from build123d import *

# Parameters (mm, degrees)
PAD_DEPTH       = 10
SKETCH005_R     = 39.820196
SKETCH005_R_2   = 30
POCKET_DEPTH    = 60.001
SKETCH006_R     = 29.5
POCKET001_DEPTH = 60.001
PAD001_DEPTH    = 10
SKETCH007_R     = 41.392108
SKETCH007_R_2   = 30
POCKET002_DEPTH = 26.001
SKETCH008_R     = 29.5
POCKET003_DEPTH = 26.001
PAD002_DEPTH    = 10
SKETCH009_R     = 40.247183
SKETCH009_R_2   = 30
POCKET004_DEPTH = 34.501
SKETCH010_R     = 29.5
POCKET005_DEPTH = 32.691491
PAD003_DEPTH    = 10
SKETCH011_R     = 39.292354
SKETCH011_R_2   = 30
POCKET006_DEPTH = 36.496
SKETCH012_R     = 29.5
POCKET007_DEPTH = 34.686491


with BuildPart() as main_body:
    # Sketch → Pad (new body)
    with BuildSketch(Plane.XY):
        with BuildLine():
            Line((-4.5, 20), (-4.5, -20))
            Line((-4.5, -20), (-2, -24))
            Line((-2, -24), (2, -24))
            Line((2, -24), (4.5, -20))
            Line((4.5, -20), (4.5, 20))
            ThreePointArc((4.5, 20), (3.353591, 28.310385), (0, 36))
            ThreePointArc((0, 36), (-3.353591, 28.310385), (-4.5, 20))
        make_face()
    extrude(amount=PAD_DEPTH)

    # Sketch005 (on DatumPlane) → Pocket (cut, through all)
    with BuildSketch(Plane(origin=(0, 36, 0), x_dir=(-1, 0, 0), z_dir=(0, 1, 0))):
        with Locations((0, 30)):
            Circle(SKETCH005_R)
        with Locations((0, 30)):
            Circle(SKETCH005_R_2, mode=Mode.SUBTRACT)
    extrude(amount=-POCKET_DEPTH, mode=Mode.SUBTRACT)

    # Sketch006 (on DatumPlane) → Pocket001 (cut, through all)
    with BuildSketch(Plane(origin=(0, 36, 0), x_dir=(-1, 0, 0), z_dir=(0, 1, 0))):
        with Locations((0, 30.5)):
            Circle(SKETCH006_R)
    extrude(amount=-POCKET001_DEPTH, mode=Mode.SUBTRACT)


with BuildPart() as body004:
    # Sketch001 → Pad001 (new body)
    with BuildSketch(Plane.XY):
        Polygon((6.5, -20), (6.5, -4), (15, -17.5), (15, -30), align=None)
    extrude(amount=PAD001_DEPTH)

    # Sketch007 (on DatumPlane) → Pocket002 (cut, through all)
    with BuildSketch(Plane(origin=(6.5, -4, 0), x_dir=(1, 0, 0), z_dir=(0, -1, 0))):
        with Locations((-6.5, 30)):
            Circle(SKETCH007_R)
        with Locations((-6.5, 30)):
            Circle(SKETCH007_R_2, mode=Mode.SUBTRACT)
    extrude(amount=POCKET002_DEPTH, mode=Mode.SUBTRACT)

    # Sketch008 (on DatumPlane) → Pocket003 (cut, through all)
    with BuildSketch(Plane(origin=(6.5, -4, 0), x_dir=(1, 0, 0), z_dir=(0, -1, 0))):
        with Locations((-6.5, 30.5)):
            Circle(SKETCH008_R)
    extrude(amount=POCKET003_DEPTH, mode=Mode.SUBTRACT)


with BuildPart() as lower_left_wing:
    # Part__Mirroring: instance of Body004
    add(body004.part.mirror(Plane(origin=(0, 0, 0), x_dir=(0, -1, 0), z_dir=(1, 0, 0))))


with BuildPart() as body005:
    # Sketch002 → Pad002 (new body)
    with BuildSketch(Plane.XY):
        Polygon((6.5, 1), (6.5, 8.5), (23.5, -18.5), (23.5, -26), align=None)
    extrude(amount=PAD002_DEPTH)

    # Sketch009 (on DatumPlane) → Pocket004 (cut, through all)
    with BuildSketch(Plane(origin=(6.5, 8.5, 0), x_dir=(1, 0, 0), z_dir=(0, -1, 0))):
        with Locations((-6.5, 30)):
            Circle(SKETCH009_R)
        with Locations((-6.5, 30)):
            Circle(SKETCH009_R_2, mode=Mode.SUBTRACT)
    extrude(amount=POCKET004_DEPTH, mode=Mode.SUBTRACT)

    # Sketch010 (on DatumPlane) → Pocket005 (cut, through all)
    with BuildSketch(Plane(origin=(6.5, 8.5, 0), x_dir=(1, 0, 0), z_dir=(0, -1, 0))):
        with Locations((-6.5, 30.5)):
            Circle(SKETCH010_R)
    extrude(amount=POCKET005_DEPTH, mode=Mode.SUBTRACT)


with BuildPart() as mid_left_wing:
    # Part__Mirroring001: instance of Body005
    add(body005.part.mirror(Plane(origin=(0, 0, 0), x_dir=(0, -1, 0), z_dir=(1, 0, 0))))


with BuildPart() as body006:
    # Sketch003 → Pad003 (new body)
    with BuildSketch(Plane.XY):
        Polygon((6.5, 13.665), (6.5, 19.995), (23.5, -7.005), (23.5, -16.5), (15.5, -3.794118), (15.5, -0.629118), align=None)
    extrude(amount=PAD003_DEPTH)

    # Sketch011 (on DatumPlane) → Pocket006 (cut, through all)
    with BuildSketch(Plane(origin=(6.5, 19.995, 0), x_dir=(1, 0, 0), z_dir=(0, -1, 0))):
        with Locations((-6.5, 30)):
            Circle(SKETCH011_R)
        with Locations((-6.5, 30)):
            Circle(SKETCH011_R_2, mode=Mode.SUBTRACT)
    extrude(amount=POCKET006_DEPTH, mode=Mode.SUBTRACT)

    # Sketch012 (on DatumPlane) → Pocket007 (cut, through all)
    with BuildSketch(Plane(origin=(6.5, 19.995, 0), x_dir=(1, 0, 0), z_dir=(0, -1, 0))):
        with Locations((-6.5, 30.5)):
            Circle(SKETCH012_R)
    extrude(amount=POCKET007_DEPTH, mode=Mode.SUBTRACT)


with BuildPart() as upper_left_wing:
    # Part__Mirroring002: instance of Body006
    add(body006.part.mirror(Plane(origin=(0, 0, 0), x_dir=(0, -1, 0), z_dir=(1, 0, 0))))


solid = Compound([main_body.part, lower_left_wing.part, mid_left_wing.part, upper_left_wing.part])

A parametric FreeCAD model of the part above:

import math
import FreeCAD as App
import Part
import Sketcher

doc = App.newDocument("Part")
params = doc.addObject("Spreadsheet::Sheet", "Params")
for row, (alias, value) in enumerate([
    ("sketch1_width", "4 mm"),
    ("sketch1_height", "40 mm"),
    ("pad1_length", "10 mm"),
    ("sketch2_diameter", "60 mm"),
    ("sketch3_diameter", "59 mm"),
    ("sketch4_height", "16 mm"),
    ("sketch4_height2", "12.5 mm"),
    ("pad2_length", "10 mm"),
    ("sketch5_diameter", "60 mm"),
    ("sketch6_diameter", "59 mm"),
    ("sketch7_height", "7.5 mm"),
    ("pad3_length", "10 mm"),
    ("sketch8_diameter", "60 mm"),
    ("sketch9_diameter", "59 mm"),
    ("sketch10_height", "6.33 mm"),
    ("pad4_length", "10 mm"),
    ("sketch11_diameter", "60 mm"),
    ("sketch12_diameter", "59 mm"),
], start=1):
    params.set(f"A{row}", alias)
    params.set(f"B{row}", "=" + value)
    params.setAlias(f"B{row}", alias)

body = doc.addObject("PartDesign::Body", "Body")

# Sketch on XY plane
sketch1 = doc.addObject("Sketcher::SketchObject", "Sketch")
body.addObject(sketch1)
sketch1.AttachmentSupport = (doc.XY_Plane, [""])
sketch1.MapMode = "FlatFace"
sketch1.addGeometry([
    Part.LineSegment(App.Vector(-4.5, 20, 0), App.Vector(-4.5, -20, 0)),  # 0
    Part.LineSegment(App.Vector(-4.5, -20, 0), App.Vector(-2, -24, 0)),  # 1
    Part.LineSegment(App.Vector(-2, -24, 0), App.Vector(2, -24, 0)),  # 2
    Part.LineSegment(App.Vector(2, -24, 0), App.Vector(4.5, -20, 0)),  # 3
    Part.LineSegment(App.Vector(4.5, -20, 0), App.Vector(4.5, 20, 0)),  # 4
    Part.ArcOfCircle(Part.Circle(App.Vector(-26.2, 20, 0), App.Vector(0, 0, 1), 30.7), math.radians(0), math.radians(31)),  # 5
    Part.ArcOfCircle(Part.Circle(App.Vector(26.2, 20, 0), App.Vector(0, 0, 1), 30.7), math.radians(149), math.radians(180)),  # 6
], False)
sketch1.addConstraint([
    Sketcher.Constraint("Coincident", 0, 2, 1, 1),
    Sketcher.Constraint("Coincident", 1, 2, 2, 1),
    Sketcher.Constraint("Coincident", 2, 2, 3, 1),
    Sketcher.Constraint("Coincident", 3, 2, 4, 1),
    Sketcher.Constraint("Tangent", 4, 2, 5, 1),
    Sketcher.Constraint("Coincident", 5, 2, 6, 1),
    Sketcher.Constraint("Tangent", 6, 2, 0, 1),
    Sketcher.Constraint("Vertical", 0),
    Sketcher.Constraint("Horizontal", 2),
    Sketcher.Constraint("Vertical", 4),
    Sketcher.Constraint("Equal", 5, 6),
    Sketcher.Constraint("Symmetric", 0, 2, 4, 2, -1, 1),
    Sketcher.Constraint("PointOnObject", 5, 2, -2),
    Sketcher.Constraint("Horizontal", 0, 2, 3, 2),
    Sketcher.Constraint("Equal", 1, 3),
    Sketcher.Constraint("DistanceX", 2, 1, 2, 2, 4.0),
    Sketcher.Constraint("DistanceY", 0, 2, 0, 1, 40.0),
    Sketcher.Constraint("DistanceY", 1, 2, -1, 1, 24.0),
    Sketcher.Constraint("DistanceY", -1, 1, 5, 2, 36.0),
    Sketcher.Constraint("DistanceX", 0, 2, 3, 2, 9.0),
])
sketch1.setExpression("Constraints[15]", "Params.sketch1_width")
sketch1.setExpression("Constraints[16]", "Params.sketch1_height")
pad1 = doc.addObject("PartDesign::Pad", "Pad")
body.addObject(pad1)
pad1.Profile = sketch1
pad1.setExpression("Length", "Params.pad1_length")

# Sketch on XZ plane
sketch2 = doc.addObject("Sketcher::SketchObject", "Sketch001")
body.addObject(sketch2)
sketch2.AttachmentSupport = (doc.XZ_Plane, [""])
sketch2.MapMode = "FlatFace"
sketch2.AttachmentOffset = App.Placement(App.Vector(0, 0, -36), App.Rotation())
sketch2.addGeometry([
    Part.Circle(App.Vector(0, 30, 0), App.Vector(0, 0, 1), 40),
    Part.Circle(App.Vector(0, 30, 0), App.Vector(0, 0, 1), 30),
], False)
sketch2.addConstraint([
    Sketcher.Constraint("Coincident", 1, 3, 0, 3),
    Sketcher.Constraint("PointOnObject", 0, 3, -2),
    Sketcher.Constraint("Diameter", 1, 60.0),
    Sketcher.Constraint("DistanceY", -1, 1, 0, 3, 30.0),
    Sketcher.Constraint("Diameter", 0, 79.640392),
])
sketch2.setExpression("Constraints[2]", "Params.sketch2_diameter")
pocket1 = doc.addObject("PartDesign::Pocket", "Pocket")
body.addObject(pocket1)
pocket1.Profile = sketch2
pocket1.Type = "ThroughAll"
pocket1.Reversed = True

# Sketch on XZ plane
sketch3 = doc.addObject("Sketcher::SketchObject", "Sketch002")
body.addObject(sketch3)
sketch3.AttachmentSupport = (doc.XZ_Plane, [""])
sketch3.MapMode = "FlatFace"
sketch3.AttachmentOffset = App.Placement(App.Vector(0, 0, -36), App.Rotation())
sketch3.addGeometry(Part.Circle(App.Vector(0, 30, 0), App.Vector(0, 0, 1), 30), False)
sketch3.addConstraint([
    Sketcher.Constraint("PointOnObject", 0, 3, -2),
    Sketcher.Constraint("Diameter", 0, 59.0),
    Sketcher.Constraint("DistanceY", -1, 1, 0, 3, 30.5),
])
sketch3.setExpression("Constraints[1]", "Params.sketch3_diameter")
pocket2 = doc.addObject("PartDesign::Pocket", "Pocket001")
body.addObject(pocket2)
pocket2.Profile = sketch3
pocket2.Type = "ThroughAll"
pocket2.Reversed = True
body2 = doc.addObject("PartDesign::Body", "Body001")

# Sketch on XY plane
sketch4 = doc.addObject("Sketcher::SketchObject", "Sketch003")
body2.addObject(sketch4)
sketch4.AttachmentSupport = (doc.getObject("XY_Plane001"), [""])
sketch4.MapMode = "FlatFace"
sketch4.addGeometry([
    Part.LineSegment(App.Vector(6, -4, 0), App.Vector(6, -20, 0)),
    Part.LineSegment(App.Vector(6, -20, 0), App.Vector(15, -30, 0)),
    Part.LineSegment(App.Vector(15, -30, 0), App.Vector(15, -18, 0)),
    Part.LineSegment(App.Vector(15, -18, 0), App.Vector(6, -4, 0)),
], False)
sketch4.addConstraint([
    Sketcher.Constraint("Coincident", 0, 2, 1, 1),
    Sketcher.Constraint("Coincident", 1, 2, 2, 1),
    Sketcher.Constraint("Coincident", 2, 2, 3, 1),
    Sketcher.Constraint("Coincident", 3, 2, 0, 1),
    Sketcher.Constraint("Vertical", 0),
    Sketcher.Constraint("Vertical", 2),
    Sketcher.Constraint("DistanceY", 0, 2, 0, 1, 16.0),
    Sketcher.Constraint("DistanceY", 2, 1, 2, 2, 12.5),
    Sketcher.Constraint("DistanceY", 0, 2, -1, 1, 20.0),
    Sketcher.Constraint("DistanceX", -1, 1, 1, 2, 15.0),
    Sketcher.Constraint("DistanceY", 1, 2, -1, 1, 30.0),
    Sketcher.Constraint("DistanceX", -1, 1, 0, 2, 6.5),
])
sketch4.setExpression("Constraints[6]", "Params.sketch4_height")
sketch4.setExpression("Constraints[7]", "Params.sketch4_height2")
pad2 = doc.addObject("PartDesign::Pad", "Pad001")
body2.addObject(pad2)
pad2.Profile = sketch4
pad2.setExpression("Length", "Params.pad2_length")

# Sketch on XZ plane
sketch5 = doc.addObject("Sketcher::SketchObject", "Sketch004")
body2.addObject(sketch5)
sketch5.AttachmentSupport = (doc.getObject("XZ_Plane001"), [""])
sketch5.MapMode = "FlatFace"
sketch5.AttachmentOffset = App.Placement(App.Vector(0, 0, 4), App.Rotation())
sketch5.addGeometry([
    Part.Circle(App.Vector(0, 30, 0), App.Vector(0, 0, 1), 41),
    Part.Circle(App.Vector(0, 30, 0), App.Vector(0, 0, 1), 30),
], False)
sketch5.addConstraint([
    Sketcher.Constraint("Coincident", 1, 3, 0, 3),
    Sketcher.Constraint("PointOnObject", 0, 3, -2),
    Sketcher.Constraint("Diameter", 1, 60.0),
    Sketcher.Constraint("DistanceY", -1, 1, 0, 3, 30.0),
    Sketcher.Constraint("Diameter", 0, 82.784216),
])
sketch5.setExpression("Constraints[2]", "Params.sketch5_diameter")
pocket3 = doc.addObject("PartDesign::Pocket", "Pocket002")
body2.addObject(pocket3)
pocket3.Profile = sketch5
pocket3.Type = "ThroughAll"
pocket3.Reversed = True

# Sketch on XZ plane
sketch6 = doc.addObject("Sketcher::SketchObject", "Sketch005")
body2.addObject(sketch6)
sketch6.AttachmentSupport = (doc.getObject("XZ_Plane001"), [""])
sketch6.MapMode = "FlatFace"
sketch6.AttachmentOffset = App.Placement(App.Vector(0, 0, 4), App.Rotation())
sketch6.addGeometry(Part.Circle(App.Vector(0, 30, 0), App.Vector(0, 0, 1), 30), False)
sketch6.addConstraint([
    Sketcher.Constraint("PointOnObject", 0, 3, -2),
    Sketcher.Constraint("Diameter", 0, 59.0),
    Sketcher.Constraint("DistanceY", -1, 1, 0, 3, 30.5),
])
sketch6.setExpression("Constraints[1]", "Params.sketch6_diameter")
pocket4 = doc.addObject("PartDesign::Pocket", "Pocket003")
body2.addObject(pocket4)
pocket4.Profile = sketch6
pocket4.Type = "ThroughAll"
pocket4.Reversed = True
body3 = doc.addObject("PartDesign::Body", "Body002")
doc.recompute()

mirroring = doc.addObject("Part::Mirroring", "Mirroring")
mirroring.Source = body2
mirroring.Base = App.Vector(0, 0, 0)
mirroring.Normal = App.Vector(1, 0, 0)
body3.BaseFeature = mirroring
doc.recompute()
body4 = doc.addObject("PartDesign::Body", "Body003")

# Sketch on XY plane
sketch7 = doc.addObject("Sketcher::SketchObject", "Sketch006")
body4.addObject(sketch7)
sketch7.AttachmentSupport = (doc.getObject("XY_Plane003"), [""])
sketch7.MapMode = "FlatFace"
sketch7.addGeometry([
    Part.LineSegment(App.Vector(6, 8, 0), App.Vector(6, 1, 0)),
    Part.LineSegment(App.Vector(6, 1, 0), App.Vector(24, -26, 0)),
    Part.LineSegment(App.Vector(24, -26, 0), App.Vector(24, -18, 0)),
    Part.LineSegment(App.Vector(24, -18, 0), App.Vector(6, 8, 0)),
], False)
sketch7.addConstraint([
    Sketcher.Constraint("Coincident", 0, 2, 1, 1),
    Sketcher.Constraint("Coincident", 1, 2, 2, 1),
    Sketcher.Constraint("Coincident", 2, 2, 3, 1),
    Sketcher.Constraint("Coincident", 3, 2, 0, 1),
    Sketcher.Constraint("Vertical", 0),
    Sketcher.Constraint("Vertical", 2),
    Sketcher.Constraint("Parallel", 1, 3),
    Sketcher.Constraint("DistanceY", 0, 2, 0, 1, 7.5),
    Sketcher.Constraint("DistanceY", -1, 1, 0, 2, 1.0),
    Sketcher.Constraint("DistanceY", 1, 2, -1, 1, 26.0),
    Sketcher.Constraint("DistanceX", 0, 2, 1, 2, 17.0),
    Sketcher.Constraint("DistanceX", -1, 1, 0, 2, 6.5),
])
sketch7.setExpression("Constraints[7]", "Params.sketch7_height")
pad3 = doc.addObject("PartDesign::Pad", "Pad002")
body4.addObject(pad3)
pad3.Profile = sketch7
pad3.setExpression("Length", "Params.pad3_length")

# Sketch on XZ plane
sketch8 = doc.addObject("Sketcher::SketchObject", "Sketch007")
body4.addObject(sketch8)
sketch8.AttachmentSupport = (doc.getObject("XZ_Plane003"), [""])
sketch8.MapMode = "FlatFace"
sketch8.AttachmentOffset = App.Placement(App.Vector(0, 0, -8.5), App.Rotation())
sketch8.addGeometry([
    Part.Circle(App.Vector(0, 30, 0), App.Vector(0, 0, 1), 40),
    Part.Circle(App.Vector(0, 30, 0), App.Vector(0, 0, 1), 30),
], False)
sketch8.addConstraint([
    Sketcher.Constraint("Coincident", 1, 3, 0, 3),
    Sketcher.Constraint("PointOnObject", 0, 3, -2),
    Sketcher.Constraint("Diameter", 1, 60.0),
    Sketcher.Constraint("DistanceY", -1, 1, 0, 3, 30.0),
    Sketcher.Constraint("Diameter", 0, 80.494366),
])
sketch8.setExpression("Constraints[2]", "Params.sketch8_diameter")
pocket5 = doc.addObject("PartDesign::Pocket", "Pocket004")
body4.addObject(pocket5)
pocket5.Profile = sketch8
pocket5.Type = "ThroughAll"
pocket5.Reversed = True

# Sketch on XZ plane
sketch9 = doc.addObject("Sketcher::SketchObject", "Sketch008")
body4.addObject(sketch9)
sketch9.AttachmentSupport = (doc.getObject("XZ_Plane003"), [""])
sketch9.MapMode = "FlatFace"
sketch9.AttachmentOffset = App.Placement(App.Vector(0, 0, -8.5), App.Rotation())
sketch9.addGeometry(Part.Circle(App.Vector(0, 30, 0), App.Vector(0, 0, 1), 30), False)
sketch9.addConstraint([
    Sketcher.Constraint("PointOnObject", 0, 3, -2),
    Sketcher.Constraint("Diameter", 0, 59.0),
    Sketcher.Constraint("DistanceY", -1, 1, 0, 3, 30.5),
])
sketch9.setExpression("Constraints[1]", "Params.sketch9_diameter")
pocket6 = doc.addObject("PartDesign::Pocket", "Pocket005")
body4.addObject(pocket6)
pocket6.Profile = sketch9
pocket6.Type = "ThroughAll"
pocket6.Reversed = True
body5 = doc.addObject("PartDesign::Body", "Body004")
doc.recompute()

mirroring2 = doc.addObject("Part::Mirroring", "Mirroring001")
mirroring2.Source = body4
mirroring2.Base = App.Vector(0, 0, 0)
mirroring2.Normal = App.Vector(1, 0, 0)
body5.BaseFeature = mirroring2
doc.recompute()
body6 = doc.addObject("PartDesign::Body", "Body005")

# Sketch on XY plane
sketch10 = doc.addObject("Sketcher::SketchObject", "Sketch009")
body6.addObject(sketch10)
sketch10.AttachmentSupport = (doc.getObject("XY_Plane005"), [""])
sketch10.MapMode = "FlatFace"
sketch10.addGeometry([
    Part.LineSegment(App.Vector(6.5, 20, 0), App.Vector(6.5, 13.7, 0)),  # 0
    Part.LineSegment(App.Vector(6.5, 13.7, 0), App.Vector(15.5, -0.6, 0)),  # 1
    Part.LineSegment(App.Vector(15.5, -0.6, 0), App.Vector(15.5, -3.8, 0)),  # 2
    Part.LineSegment(App.Vector(15.5, -3.8, 0), App.Vector(23.5, -16.5, 0)),  # 3
    Part.LineSegment(App.Vector(23.5, -16.5, 0), App.Vector(23.5, -7, 0)),  # 4
    Part.LineSegment(App.Vector(23.5, -7, 0), App.Vector(6.5, 20, 0)),  # 5
], False)
sketch10.addConstraint([
    Sketcher.Constraint("Coincident", 0, 2, 1, 1),
    Sketcher.Constraint("Coincident", 1, 2, 2, 1),
    Sketcher.Constraint("Coincident", 2, 2, 3, 1),
    Sketcher.Constraint("Coincident", 3, 2, 4, 1),
    Sketcher.Constraint("Coincident", 4, 2, 5, 1),
    Sketcher.Constraint("Coincident", 5, 2, 0, 1),
    Sketcher.Constraint("Vertical", 0),
    Sketcher.Constraint("Vertical", 2),
    Sketcher.Constraint("Vertical", 4),
    Sketcher.Constraint("Parallel", 1, 3),
    Sketcher.Constraint("Parallel", 3, 5),
    Sketcher.Constraint("DistanceX", 0, 2, 1, 2, 9.0),
    Sketcher.Constraint("DistanceX", 2, 2, 3, 2, 8.0),
    Sketcher.Constraint("DistanceY", 4, 2, 5, 2, 27.0),
    Sketcher.Constraint("DistanceY", 0, 2, 0, 1, 6.33),
    Sketcher.Constraint("DistanceX", -1, 1, 0, 2, 6.5),
    Sketcher.Constraint("DistanceY", 3, 2, -1, 1, 16.5),
    Sketcher.Constraint("DistanceY", 2, 2, 2, 1, 3.165),
])
sketch10.setExpression("Constraints[14]", "Params.sketch10_height")
pad4 = doc.addObject("PartDesign::Pad", "Pad003")
body6.addObject(pad4)
pad4.Profile = sketch10
pad4.setExpression("Length", "Params.pad4_length")

# Sketch on XZ plane
sketch11 = doc.addObject("Sketcher::SketchObject", "Sketch010")
body6.addObject(sketch11)
sketch11.AttachmentSupport = (doc.getObject("XZ_Plane005"), [""])
sketch11.MapMode = "FlatFace"
sketch11.AttachmentOffset = App.Placement(App.Vector(0, 0, -19.995), App.Rotation())
sketch11.addGeometry([
    Part.Circle(App.Vector(0, 30, 0), App.Vector(0, 0, 1), 39),
    Part.Circle(App.Vector(0, 30, 0), App.Vector(0, 0, 1), 30),
], False)
sketch11.addConstraint([
    Sketcher.Constraint("Coincident", 1, 3, 0, 3),
    Sketcher.Constraint("PointOnObject", 0, 3, -2),
    Sketcher.Constraint("Diameter", 1, 60.0),
    Sketcher.Constraint("DistanceY", -1, 1, 0, 3, 30.0),
    Sketcher.Constraint("Diameter", 0, 78.584708),
])
sketch11.setExpression("Constraints[2]", "Params.sketch11_diameter")
pocket7 = doc.addObject("PartDesign::Pocket", "Pocket006")
body6.addObject(pocket7)
pocket7.Profile = sketch11
pocket7.Type = "ThroughAll"
pocket7.Reversed = True

# Sketch on XZ plane
sketch12 = doc.addObject("Sketcher::SketchObject", "Sketch011")
body6.addObject(sketch12)
sketch12.AttachmentSupport = (doc.getObject("XZ_Plane005"), [""])
sketch12.MapMode = "FlatFace"
sketch12.AttachmentOffset = App.Placement(App.Vector(0, 0, -19.995), App.Rotation())
sketch12.addGeometry(Part.Circle(App.Vector(0, 30, 0), App.Vector(0, 0, 1), 30), False)
sketch12.addConstraint([
    Sketcher.Constraint("PointOnObject", 0, 3, -2),
    Sketcher.Constraint("Diameter", 0, 59.0),
    Sketcher.Constraint("DistanceY", -1, 1, 0, 3, 30.5),
])
sketch12.setExpression("Constraints[1]", "Params.sketch12_diameter")
pocket8 = doc.addObject("PartDesign::Pocket", "Pocket007")
body6.addObject(pocket8)
pocket8.Profile = sketch12
pocket8.Type = "ThroughAll"
pocket8.Reversed = True
body7 = doc.addObject("PartDesign::Body", "Body006")
doc.recompute()

mirroring3 = doc.addObject("Part::Mirroring", "Mirroring002")
mirroring3.Source = body6
mirroring3.Base = App.Vector(0, 0, 0)
mirroring3.Normal = App.Vector(1, 0, 0)
body7.BaseFeature = mirroring3
doc.recompute()
body2.Visibility = False
body4.Visibility = False
body6.Visibility = False
mirroring.Visibility = False
mirroring2.Visibility = False
mirroring3.Visibility = False

doc.recompute()
